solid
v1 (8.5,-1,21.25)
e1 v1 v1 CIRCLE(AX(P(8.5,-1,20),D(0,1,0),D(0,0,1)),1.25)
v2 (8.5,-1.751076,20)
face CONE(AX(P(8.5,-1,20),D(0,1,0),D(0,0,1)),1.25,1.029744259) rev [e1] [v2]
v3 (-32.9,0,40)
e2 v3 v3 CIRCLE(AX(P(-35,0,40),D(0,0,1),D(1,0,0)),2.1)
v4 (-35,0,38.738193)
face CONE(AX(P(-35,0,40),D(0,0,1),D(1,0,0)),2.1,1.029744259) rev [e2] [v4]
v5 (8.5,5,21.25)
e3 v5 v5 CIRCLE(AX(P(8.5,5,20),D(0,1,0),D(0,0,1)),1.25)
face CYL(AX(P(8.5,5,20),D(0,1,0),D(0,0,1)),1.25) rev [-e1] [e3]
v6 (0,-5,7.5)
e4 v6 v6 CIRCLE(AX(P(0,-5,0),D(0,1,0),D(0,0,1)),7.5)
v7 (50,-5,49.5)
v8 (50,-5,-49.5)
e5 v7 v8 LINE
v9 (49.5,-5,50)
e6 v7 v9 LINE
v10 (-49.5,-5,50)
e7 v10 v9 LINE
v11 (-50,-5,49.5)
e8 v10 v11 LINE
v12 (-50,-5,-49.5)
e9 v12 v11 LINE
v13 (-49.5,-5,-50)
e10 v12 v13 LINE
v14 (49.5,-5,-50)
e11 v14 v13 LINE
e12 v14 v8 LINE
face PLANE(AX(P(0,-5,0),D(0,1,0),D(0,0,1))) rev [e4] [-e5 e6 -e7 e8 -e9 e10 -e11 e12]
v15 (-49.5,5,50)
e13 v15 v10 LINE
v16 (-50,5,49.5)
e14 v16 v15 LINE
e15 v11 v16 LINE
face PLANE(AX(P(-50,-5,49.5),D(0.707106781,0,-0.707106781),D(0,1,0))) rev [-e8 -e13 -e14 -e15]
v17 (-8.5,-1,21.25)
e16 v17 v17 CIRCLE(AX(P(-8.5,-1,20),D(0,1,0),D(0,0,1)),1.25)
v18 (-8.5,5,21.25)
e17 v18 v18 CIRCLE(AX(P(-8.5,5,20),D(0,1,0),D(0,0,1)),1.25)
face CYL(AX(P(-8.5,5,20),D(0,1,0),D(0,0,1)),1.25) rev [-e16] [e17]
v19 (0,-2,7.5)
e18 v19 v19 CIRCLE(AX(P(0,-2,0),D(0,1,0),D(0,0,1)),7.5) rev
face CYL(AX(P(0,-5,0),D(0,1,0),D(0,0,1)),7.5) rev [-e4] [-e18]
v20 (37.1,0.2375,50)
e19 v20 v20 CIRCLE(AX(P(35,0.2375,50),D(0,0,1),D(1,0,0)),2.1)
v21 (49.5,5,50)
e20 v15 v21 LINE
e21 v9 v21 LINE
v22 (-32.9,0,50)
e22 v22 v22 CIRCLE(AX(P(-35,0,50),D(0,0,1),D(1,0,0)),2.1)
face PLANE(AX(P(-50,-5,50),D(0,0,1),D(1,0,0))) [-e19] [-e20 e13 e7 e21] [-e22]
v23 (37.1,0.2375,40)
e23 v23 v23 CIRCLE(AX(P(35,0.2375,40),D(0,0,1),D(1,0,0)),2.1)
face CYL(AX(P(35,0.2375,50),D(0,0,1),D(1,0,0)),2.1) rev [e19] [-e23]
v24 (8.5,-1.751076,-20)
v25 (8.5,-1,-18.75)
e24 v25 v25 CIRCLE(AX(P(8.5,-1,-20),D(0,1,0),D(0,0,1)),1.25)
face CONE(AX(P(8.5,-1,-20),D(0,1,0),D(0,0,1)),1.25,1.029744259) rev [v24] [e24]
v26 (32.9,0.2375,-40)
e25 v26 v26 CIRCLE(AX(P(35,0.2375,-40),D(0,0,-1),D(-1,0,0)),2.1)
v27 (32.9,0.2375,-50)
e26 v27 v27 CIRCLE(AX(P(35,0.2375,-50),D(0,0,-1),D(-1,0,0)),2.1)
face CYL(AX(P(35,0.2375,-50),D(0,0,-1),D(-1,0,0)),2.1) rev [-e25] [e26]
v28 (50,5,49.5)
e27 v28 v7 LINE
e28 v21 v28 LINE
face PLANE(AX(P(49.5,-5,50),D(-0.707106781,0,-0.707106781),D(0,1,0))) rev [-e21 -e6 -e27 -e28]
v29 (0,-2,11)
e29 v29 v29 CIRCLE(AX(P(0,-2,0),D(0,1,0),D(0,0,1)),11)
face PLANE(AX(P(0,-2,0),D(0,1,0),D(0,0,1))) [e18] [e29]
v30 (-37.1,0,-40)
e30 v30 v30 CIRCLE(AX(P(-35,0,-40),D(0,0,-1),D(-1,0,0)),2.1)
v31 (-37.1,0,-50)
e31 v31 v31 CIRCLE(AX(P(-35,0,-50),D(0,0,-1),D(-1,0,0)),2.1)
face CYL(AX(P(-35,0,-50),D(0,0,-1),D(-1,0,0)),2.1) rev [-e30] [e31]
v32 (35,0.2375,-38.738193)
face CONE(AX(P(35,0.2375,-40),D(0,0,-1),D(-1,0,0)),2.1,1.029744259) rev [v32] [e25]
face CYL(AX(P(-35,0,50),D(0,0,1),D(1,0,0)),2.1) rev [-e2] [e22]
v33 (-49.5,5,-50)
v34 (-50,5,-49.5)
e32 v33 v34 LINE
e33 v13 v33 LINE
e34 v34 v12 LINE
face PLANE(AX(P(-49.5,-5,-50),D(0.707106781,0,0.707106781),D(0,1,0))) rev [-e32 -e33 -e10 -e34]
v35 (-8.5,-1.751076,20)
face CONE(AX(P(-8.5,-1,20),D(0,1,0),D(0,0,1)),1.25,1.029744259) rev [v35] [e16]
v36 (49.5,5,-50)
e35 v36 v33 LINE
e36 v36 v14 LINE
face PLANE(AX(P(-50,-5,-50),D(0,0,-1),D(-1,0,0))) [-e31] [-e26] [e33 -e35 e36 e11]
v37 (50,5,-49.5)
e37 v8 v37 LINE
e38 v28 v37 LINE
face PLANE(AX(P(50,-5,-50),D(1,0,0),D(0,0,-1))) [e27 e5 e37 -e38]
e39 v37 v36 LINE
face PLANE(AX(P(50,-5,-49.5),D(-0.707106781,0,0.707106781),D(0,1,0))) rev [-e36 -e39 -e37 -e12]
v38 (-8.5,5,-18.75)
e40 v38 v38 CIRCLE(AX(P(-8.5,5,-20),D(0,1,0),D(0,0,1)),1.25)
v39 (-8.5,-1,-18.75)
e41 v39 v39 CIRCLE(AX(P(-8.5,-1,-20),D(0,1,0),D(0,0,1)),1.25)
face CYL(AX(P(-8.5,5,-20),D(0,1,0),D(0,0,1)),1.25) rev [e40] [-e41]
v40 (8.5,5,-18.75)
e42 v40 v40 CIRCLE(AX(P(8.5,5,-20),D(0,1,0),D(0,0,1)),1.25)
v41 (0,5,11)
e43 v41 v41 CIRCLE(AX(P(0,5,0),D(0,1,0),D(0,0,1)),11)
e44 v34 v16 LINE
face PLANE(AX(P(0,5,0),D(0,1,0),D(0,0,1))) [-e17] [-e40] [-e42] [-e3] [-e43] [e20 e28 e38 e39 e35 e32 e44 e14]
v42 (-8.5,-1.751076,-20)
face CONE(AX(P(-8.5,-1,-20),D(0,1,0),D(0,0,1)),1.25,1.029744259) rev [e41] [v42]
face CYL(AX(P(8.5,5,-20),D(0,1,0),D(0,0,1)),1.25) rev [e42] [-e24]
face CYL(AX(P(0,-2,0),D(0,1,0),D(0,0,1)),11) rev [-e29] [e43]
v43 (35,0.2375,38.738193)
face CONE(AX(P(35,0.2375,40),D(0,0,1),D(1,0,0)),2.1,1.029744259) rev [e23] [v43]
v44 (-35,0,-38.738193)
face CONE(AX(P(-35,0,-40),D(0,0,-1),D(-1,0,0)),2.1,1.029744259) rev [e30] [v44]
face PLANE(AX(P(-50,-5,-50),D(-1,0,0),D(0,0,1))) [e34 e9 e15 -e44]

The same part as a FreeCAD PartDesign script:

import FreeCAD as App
import Part
import Sketcher

V = App.Vector
Q = App.Units.Quantity


def edges_at(feature, points):
    """Names of the edges that pass closest to the given points."""
    edges = feature.Shape.Edges
    near = lambda p: min(range(len(edges)), key=lambda i: edges[i].distToShape(Part.Vertex(*p))[0])
    return sorted({f"Edge{near(p) + 1}" for p in points})

doc = App.newDocument("Part")
body = doc.addObject("PartDesign::Body", "Body")

sketch1 = body.newObject("Sketcher::SketchObject", "Sketch")
sketch1.AttachmentSupport = (doc.getObject("XZ_Plane"), [""])
sketch1.MapMode = "FlatFace"
sketch1.addGeometry(Part.LineSegment(V(-50, -50, 0), V(-50, 50, 0)), False)
sketch1.addGeometry(Part.LineSegment(V(-50, 50, 0), V(50, 50, 0)), False)
sketch1.addGeometry(Part.LineSegment(V(50, 50, 0), V(50, -50, 0)), False)
sketch1.addGeometry(Part.LineSegment(V(50, -50, 0), V(-50, -50, 0)), False)
sketch1.addGeometry(Part.Circle(V(0, 0, 0), V(0, 0, 1), 8), False)
sketch1.addConstraint(Sketcher.Constraint("Coincident", 0, 2, 1, 1))
sketch1.addConstraint(Sketcher.Constraint("Coincident", 1, 2, 2, 1))
sketch1.addConstraint(Sketcher.Constraint("Coincident", 2, 2, 3, 1))
sketch1.addConstraint(Sketcher.Constraint("Coincident", 3, 2, 0, 1))
sketch1.addConstraint(Sketcher.Constraint("Vertical", 0))
sketch1.addConstraint(Sketcher.Constraint("Horizontal", 1))
sketch1.addConstraint(Sketcher.Constraint("Vertical", 2))
sketch1.addConstraint(Sketcher.Constraint("Horizontal", 3))
sketch1.addConstraint(Sketcher.Constraint("Coincident", 4, 3, -1, 1))
sketch1.addConstraint(Sketcher.Constraint("Symmetric", 0, 2, 2, 2, -1, 1))
sketch1.addConstraint(Sketcher.Constraint("Equal", 3, 0))
sketch1.addConstraint(Sketcher.Constraint("Diameter", 4, 15.0))
sketch1.addConstraint(Sketcher.Constraint("DistanceX", 1, 1, 1, 2, 100.0))
pad1 = body.newObject("PartDesign::Pad", "Pad")
pad1.Profile = sketch1
pad1.Type = "TwoLengths"
pad1.Length = 5
pad1.Length2 = 5
pad1.Reversed = True

sketch2 = body.newObject("Sketcher::SketchObject", "Sketch001")
sketch2.AttachmentSupport = (doc.getObject("XZ_Plane"), [""])
sketch2.MapMode = "FlatFace"
sketch2.AttachmentOffset = App.Placement(V(0, 0, -5), App.Rotation())
sketch2.addGeometry(Part.Circle(V(0, 0, 0), V(0, 0, 1), 11), False)
sketch2.addConstraint(Sketcher.Constraint("Coincident", 0, 3, -1, 1))
sketch2.addConstraint(Sketcher.Constraint("Diameter", 0, 22.0))
pocket1 = body.newObject("PartDesign::Pocket", "Pocket")
pocket1.Profile = sketch2
pocket1.Length = 7
pocket1.Reversed = True

sketch3 = body.newObject("Sketcher::SketchObject", "Sketch002")
sketch3.AttachmentSupport = (doc.getObject("YZ_Plane"), [""])
sketch3.MapMode = "FlatFace"
sketch3.AttachmentOffset = App.Placement(V(0, 0, -35), App.Rotation())
sketch3.addGeometry(Part.LineSegment(V(0, 38.7, 0), V(0, 50, 0)), False)
sketch3.addGeometry(Part.LineSegment(V(0, 50, 0), V(-2.1, 50, 0)), False)
sketch3.addGeometry(Part.LineSegment(V(-2.1, 50, 0), V(-2.1, 40, 0)), False)
sketch3.addGeometry(Part.LineSegment(V(-2.1, 40, 0), V(0, 38.7, 0)), False)
sketch3.addConstraint(Sketcher.Constraint("Coincident", 0, 2, 1, 1))
sketch3.addConstraint(Sketcher.Constraint("Coincident", 1, 2, 2, 1))
sketch3.addConstraint(Sketcher.Constraint("Coincident", 2, 2, 3, 1))
sketch3.addConstraint(Sketcher.Constraint("Coincident", 3, 2, 0, 1))
sketch3.addConstraint(Sketcher.Constraint("Vertical", 0))
sketch3.addConstraint(Sketcher.Constraint("Horizontal", 1))
sketch3.addConstraint(Sketcher.Constraint("Vertical", 2))
sketch3.addConstraint(Sketcher.Constraint("PointOnObject", 0, 2, -2))
sketch3.addConstraint(Sketcher.Constraint("DistanceY", 2, 2, 2, 1, 10.0))
sketch3.addConstraint(Sketcher.Constraint("Angle", 3, Q("-31 deg")))
sketch3.addConstraint(Sketcher.Constraint("DistanceX", 1, 2, 1, 1, 2.1))
sketch3.addConstraint(Sketcher.Constraint("DistanceY", -1, 1, 0, 2, 50.0))
groove = body.newObject("PartDesign::Groove", "Groove")
groove.Profile = sketch3
groove.ReferenceAxis = (sketch3, ["V_Axis"])
groove.Angle = 360
doc.recompute()

datumline = body.newObject("PartDesign::Line", "DatumLine")
datumline.Placement = App.Placement(V(0, 0, 0), App.Rotation(V(0, 0, 1), V(0.999994244, 0.003392838, 0)))
linearpattern = body.newObject("PartDesign::LinearPattern", "LinearPattern")
linearpattern.Originals = [groove]
linearpattern.Direction = (datumline, [""])
linearpattern.Mode = "offset"
linearpattern.Offset = 70.000403
linearpattern.Occurrences = 2
body.Tip = linearpattern
doc.recompute()

mirrored = body.newObject("PartDesign::Mirrored", "Mirrored")
mirrored.Originals = [groove]
mirrored.MirrorPlane = (doc.getObject("XY_Plane"), [""])
body.Tip = mirrored

sketch4 = body.newObject("Sketcher::SketchObject", "Sketch003")
sketch4.AttachmentSupport = (doc.getObject("YZ_Plane"), [""])
sketch4.MapMode = "FlatFace"
sketch4.AttachmentOffset = App.Placement(V(0, 0, 35), App.Rotation())
sketch4.addGeometry(Part.LineSegment(V(0.2, -50, 0), V(0.2, -38.7, 0)), False)
sketch4.addGeometry(Part.LineSegment(V(0.2, -38.7, 0), V(-1.9, -40, 0)), False)
sketch4.addGeometry(Part.LineSegment(V(-1.9, -40, 0), V(-1.9, -50, 0)), False)
sketch4.addGeometry(Part.LineSegment(V(-1.9, -50, 0), V(0.2, -50, 0)), False)
sketch4.addGeometry(Part.LineSegment(V(0.2, -38.7, 0), V(0.2, -50, 0)), True)
sketch4.addConstraint(Sketcher.Constraint("Coincident", 0, 2, 1, 1))
sketch4.addConstraint(Sketcher.Constraint("Coincident", 1, 2, 2, 1))
sketch4.addConstraint(Sketcher.Constraint("Coincident", 2, 2, 3, 1))
sketch4.addConstraint(Sketcher.Constraint("Coincident", 3, 2, 0, 1))
sketch4.addConstraint(Sketcher.Constraint("Vertical", 0))
sketch4.addConstraint(Sketcher.Constraint("Vertical", 2))
sketch4.addConstraint(Sketcher.Constraint("Horizontal", 3))
sketch4.addConstraint(Sketcher.Constraint("Vertical", 4))
sketch4.addConstraint(Sketcher.Constraint("Coincident", 4, 1, 0, 2))
sketch4.addConstraint(Sketcher.Constraint("Horizontal", 2, 2, 4, 2))
sketch4.addConstraint(Sketcher.Constraint("DistanceY", 2, 2, 2, 1, 10.0))
sketch4.addConstraint(Sketcher.Constraint("Angle", 1, Q("-149 deg")))
sketch4.addConstraint(Sketcher.Constraint("DistanceX", 3, 1, 3, 2, 2.1))
sketch4.addConstraint(Sketcher.Constraint("DistanceY", 1, 2, -1, 1, 40.0))
sketch4.addConstraint(Sketcher.Constraint("DistanceX", -1, 1, 0, 2, 0.2375))
groove2 = body.newObject("PartDesign::Groove", "Groove001")
groove2.Profile = sketch4
groove2.ReferenceAxis = (sketch4, ["Axis0"])
groove2.Angle = 360

sketch5 = body.newObject("Sketcher::SketchObject", "Sketch004")
sketch5.AttachmentSupport = (doc.getObject("XZ_Plane"), [""])
sketch5.MapMode = "FlatFace"
sketch5.AttachmentOffset = App.Placement(V(0, 0, -5), App.Rotation())
sketch5.addGeometry(Part.Circle(V(-8.5, 20, 0), V(0, 0, 1), 1.2), False)
sketch5.addGeometry(Part.Circle(V(8.5, 20, 0), V(0, 0, 1), 1.2), False)
sketch5.addGeometry(Part.Circle(V(8.5, -20, 0), V(0, 0, 1), 1.2), False)
sketch5.addGeometry(Part.Circle(V(-8.5, -20, 0), V(0, 0, 1), 1.2), False)
sketch5.addConstraint(Sketcher.Constraint("Equal", 0, 1))
sketch5.addConstraint(Sketcher.Constraint("Equal", 1, 2))
sketch5.addConstraint(Sketcher.Constraint("Equal", 2, 3))
sketch5.addConstraint(Sketcher.Constraint("Symmetric", 0, 3, 2, 3, -1, 1))
sketch5.addConstraint(Sketcher.Constraint("Symmetric", 1, 3, 3, 3, -1, 1))
sketch5.addConstraint(Sketcher.Constraint("Symmetric", 0, 3, 1, 3, -2))
sketch5.addConstraint(Sketcher.Constraint("Diameter", 0, 2.5))
sketch5.addConstraint(Sketcher.Constraint("DistanceY", -1, 1, 0, 3, 20.0))
sketch5.addConstraint(Sketcher.Constraint("DistanceX", 0, 3, 1, 3, 17.0))
doc.recompute()
hole = body.newObject("PartDesign::Hole", "Hole")
hole.Profile = sketch5
hole.ThreadType = "None"
hole.Diameter = 2.5
hole.DepthType = "Dimension"
hole.Depth = 6
hole.DrillPoint = "Angled"
hole.DrillPointAngle = 118
hole.Reversed = True
doc.recompute()

chamfer = body.newObject("PartDesign::Chamfer", "Chamfer")
chamfer.Base = (hole, edges_at(hole, [
    (-50, 0, -50),
    (50, 0, -50),
    (50, 0, 50),
    (-50, 0, 50),
]))
chamfer.Size = 0.5

doc.recompute()
